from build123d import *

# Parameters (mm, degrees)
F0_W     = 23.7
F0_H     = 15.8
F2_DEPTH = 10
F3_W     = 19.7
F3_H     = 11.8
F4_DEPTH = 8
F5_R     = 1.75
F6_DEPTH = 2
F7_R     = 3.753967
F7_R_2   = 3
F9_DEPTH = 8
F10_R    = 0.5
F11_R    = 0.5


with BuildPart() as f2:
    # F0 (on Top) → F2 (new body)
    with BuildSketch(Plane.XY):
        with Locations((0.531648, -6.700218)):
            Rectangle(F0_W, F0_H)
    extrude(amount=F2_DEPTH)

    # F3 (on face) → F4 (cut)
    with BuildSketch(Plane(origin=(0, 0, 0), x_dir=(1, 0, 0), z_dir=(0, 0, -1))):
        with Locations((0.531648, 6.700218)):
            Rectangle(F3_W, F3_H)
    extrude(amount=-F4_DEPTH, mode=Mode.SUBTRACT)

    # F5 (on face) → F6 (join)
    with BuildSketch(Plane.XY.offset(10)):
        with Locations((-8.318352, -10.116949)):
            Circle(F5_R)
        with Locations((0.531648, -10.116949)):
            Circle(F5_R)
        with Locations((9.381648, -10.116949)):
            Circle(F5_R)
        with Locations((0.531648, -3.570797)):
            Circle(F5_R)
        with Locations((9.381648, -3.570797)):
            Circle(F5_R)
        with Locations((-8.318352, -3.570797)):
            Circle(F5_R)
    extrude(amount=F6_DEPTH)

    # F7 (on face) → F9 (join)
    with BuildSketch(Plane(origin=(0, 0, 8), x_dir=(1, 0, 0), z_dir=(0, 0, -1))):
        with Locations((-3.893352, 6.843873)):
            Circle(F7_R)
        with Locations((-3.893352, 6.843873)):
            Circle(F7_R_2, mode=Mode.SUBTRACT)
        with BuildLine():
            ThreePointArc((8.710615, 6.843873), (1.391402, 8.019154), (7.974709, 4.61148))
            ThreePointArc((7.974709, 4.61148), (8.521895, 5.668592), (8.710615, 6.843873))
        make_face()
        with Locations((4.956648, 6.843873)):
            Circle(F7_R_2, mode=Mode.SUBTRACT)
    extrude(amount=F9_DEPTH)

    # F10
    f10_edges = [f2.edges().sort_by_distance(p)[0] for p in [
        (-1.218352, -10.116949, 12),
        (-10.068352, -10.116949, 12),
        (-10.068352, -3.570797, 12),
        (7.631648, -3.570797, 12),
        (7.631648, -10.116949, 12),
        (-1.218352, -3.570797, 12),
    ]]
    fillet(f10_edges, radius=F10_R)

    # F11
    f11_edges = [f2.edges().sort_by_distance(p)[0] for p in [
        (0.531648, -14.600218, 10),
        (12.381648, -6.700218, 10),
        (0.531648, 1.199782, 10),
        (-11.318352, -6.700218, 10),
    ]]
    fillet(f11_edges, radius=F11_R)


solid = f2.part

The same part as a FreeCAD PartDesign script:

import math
import FreeCAD as App
import Part
import Sketcher


def edges_at(feature, points):
    """Names of the edges that pass closest to the given points."""
    edges = feature.Shape.Edges
    near = lambda p: min(range(len(edges)), key=lambda i: edges[i].distToShape(Part.Vertex(*p))[0])
    return sorted({f"Edge{near(p) + 1}" for p in points})

doc = App.newDocument("Part")
body = doc.addObject("PartDesign::Body", "Body")

# Sketch on XY plane
sketch1 = body.newObject("Sketcher::SketchObject", "Sketch")
sketch1.AttachmentSupport = (doc.getObject("XY_Plane"), [""])
sketch1.MapMode = "FlatFace"
sketch1.addGeometry([
    Part.LineSegment(App.Vector(-11, 1, 0), App.Vector(-11, -15, 0)),
    Part.LineSegment(App.Vector(-11, -15, 0), App.Vector(12, -15, 0)),
    Part.LineSegment(App.Vector(12, -15, 0), App.Vector(12, 1, 0)),
    Part.LineSegment(App.Vector(12, 1, 0), App.Vector(-11, 1, 0)),
], False)
sketch1.addConstraint([
    Sketcher.Constraint("Coincident", 0, 2, 1, 1),
    Sketcher.Constraint("Coincident", 1, 2, 2, 1),
    Sketcher.Constraint("Coincident", 2, 2, 3, 1),
    Sketcher.Constraint("Coincident", 3, 2, 0, 1),
    Sketcher.Constraint("Vertical", 0),
    Sketcher.Constraint("Horizontal", 1),
    Sketcher.Constraint("Vertical", 2),
    Sketcher.Constraint("Horizontal", 3),
    Sketcher.Constraint("DistanceX", 1, 1, 1, 2, 23.7),
    Sketcher.Constraint("DistanceY", 0, 2, 0, 1, 15.8),
    Sketcher.Constraint("DistanceY", -1, 1, 2, 2, 1.199782),
    Sketcher.Constraint("DistanceX", 0, 2, -1, 1, 11.318352),
])
pad1 = body.newObject("PartDesign::Pad", "Pad")
pad1.Profile = sketch1
pad1.Length = 10

# Sketch on XY plane
sketch2 = body.newObject("Sketcher::SketchObject", "Sketch001")
sketch2.AttachmentSupport = (doc.getObject("XY_Plane"), [""])
sketch2.MapMode = "FlatFace"
sketch2.addGeometry([
    Part.LineSegment(App.Vector(-9, -13, 0), App.Vector(-9, -1, 0)),
    Part.LineSegment(App.Vector(-9, -1, 0), App.Vector(10, -1, 0)),
    Part.LineSegment(App.Vector(10, -1, 0), App.Vector(10, -13, 0)),
    Part.LineSegment(App.Vector(10, -13, 0), App.Vector(-9, -13, 0)),
], False)
sketch2.addConstraint([
    Sketcher.Constraint("Coincident", 0, 2, 1, 1),
    Sketcher.Constraint("Coincident", 1, 2, 2, 1),
    Sketcher.Constraint("Coincident", 2, 2, 3, 1),
    Sketcher.Constraint("Coincident", 3, 2, 0, 1),
    Sketcher.Constraint("Vertical", 0),
    Sketcher.Constraint("Horizontal", 1),
    Sketcher.Constraint("Vertical", 2),
    Sketcher.Constraint("Horizontal", 3),
    Sketcher.Constraint("DistanceX", 1, 1, 1, 2, 19.7),
    Sketcher.Constraint("DistanceY", 0, 1, 0, 2, 11.8),
    Sketcher.Constraint("DistanceX", 0, 2, -1, 1, 9.318352),
    Sketcher.Constraint("DistanceY", 0, 2, -1, 1, 0.800218),
])
pocket1 = body.newObject("PartDesign::Pocket", "Pocket")
pocket1.Profile = sketch2
pocket1.Length = 8
pocket1.Reversed = True

# Sketch on XY plane
sketch3 = body.newObject("Sketcher::SketchObject", "Sketch002")
sketch3.AttachmentSupport = (doc.getObject("XY_Plane"), [""])
sketch3.MapMode = "FlatFace"
sketch3.AttachmentOffset = App.Placement(App.Vector(0, 0, 10), App.Rotation())
sketch3.addGeometry([
    Part.Circle(App.Vector(-8.3, -10.1, 0), App.Vector(0, 0, 1), 1.8),  # 0
    Part.Circle(App.Vector(0.5, -10.1, 0), App.Vector(0, 0, 1), 1.8),  # 1
    Part.Circle(App.Vector(9.4, -10.1, 0), App.Vector(0, 0, 1), 1.8),  # 2
    Part.Circle(App.Vector(0.5, -3.6, 0), App.Vector(0, 0, 1), 1.8),  # 3
    Part.Circle(App.Vector(9.4, -3.6, 0), App.Vector(0, 0, 1), 1.8),  # 4
    Part.Circle(App.Vector(-8.3, -3.6, 0), App.Vector(0, 0, 1), 1.8),  # 5
], False)
sketch3.addConstraint([
    Sketcher.Constraint("Equal", 0, 1),
    Sketcher.Constraint("Equal", 1, 2),
    Sketcher.Constraint("Equal", 2, 3),
    Sketcher.Constraint("Equal", 3, 4),
    Sketcher.Constraint("Equal", 4, 5),
    Sketcher.Constraint("Horizontal", 0, 3, 1, 3),
    Sketcher.Constraint("Horizontal", 1, 3, 2, 3),
    Sketcher.Constraint("Horizontal", 3, 3, 4, 3),
    Sketcher.Constraint("Horizontal", 4, 3, 5, 3),
    Sketcher.Constraint("Vertical", 1, 3, 3, 3),
    Sketcher.Constraint("Vertical", 2, 3, 4, 3),
    Sketcher.Constraint("Vertical", 0, 3, 5, 3),
    Sketcher.Constraint("Diameter", 0, 3.5),
    Sketcher.Constraint("DistanceX", 0, 3, 2, 3, 17.7),
    Sketcher.Constraint("DistanceX", 0, 3, 1, 3, 8.85),
    Sketcher.Constraint("DistanceY", 0, 3, -1, 1, 10.116949),
    Sketcher.Constraint("DistanceX", -1, 1, 1, 3, 0.531648),
    Sketcher.Constraint("DistanceY", 1, 3, 3, 3, 6.546152),
])
pad2 = body.newObject("PartDesign::Pad", "Pad001")
pad2.Profile = sketch3
pad2.Length = 2

# Sketch on XY plane
sketch4 = body.newObject("Sketcher::SketchObject", "Sketch003")
sketch4.AttachmentSupport = (doc.getObject("XY_Plane"), [""])
sketch4.MapMode = "FlatFace"
sketch4.AttachmentOffset = App.Placement(App.Vector(0, 0, 8), App.Rotation())
sketch4.addGeometry([
    Part.Circle(App.Vector(-3.9, -6.8, 0), App.Vector(0, 0, 1), 3.8),  # 0
    Part.Circle(App.Vector(-3.9, -6.8, 0), App.Vector(0, 0, 1), 3),  # 1
    Part.ArcOfCircle(Part.Circle(App.Vector(5, -6.8, 0), App.Vector(0, 0, 1), 3.8), math.radians(36), math.radians(360)),  # 2
    Part.ArcOfCircle(Part.Circle(App.Vector(5, -6.8, 0), App.Vector(0, 0, 1), 3.8), math.radians(0), math.radians(36)),  # 3
    Part.Circle(App.Vector(5, -6.8, 0), App.Vector(0, 0, 1), 3),  # 4
], False)
sketch4.addConstraint([
    Sketcher.Constraint("Tangent", 2, 1, 3, 2),
    Sketcher.Constraint("Coincident", 3, 1, 2, 2),
    Sketcher.Constraint("Coincident", 1, 3, 0, 3),
    Sketcher.Constraint("Coincident", 4, 3, 2, 3),
    Sketcher.Constraint("Equal", 0, 2),
    Sketcher.Constraint("Equal", 1, 4),
    Sketcher.Constraint("Horizontal", 1, 3, 2, 3),
    Sketcher.Constraint("Horizontal", 4, 3, 3, 1),
    Sketcher.Constraint("Diameter", 1, 6.0),
    Sketcher.Constraint("Radius", 3, 3.753962),
    Sketcher.Constraint("DistanceX", 0, 3, 2, 3, 8.85),
    Sketcher.Constraint("DistanceX", -1, 1, 2, 3, 4.956648),
    Sketcher.Constraint("DistanceY", 3, 3, -1, 1, 6.843871),
    Sketcher.Constraint("DistanceX", -1, 1, 2, 1, 7.974709),
])
pad3 = body.newObject("PartDesign::Pad", "Pad002")
pad3.Profile = sketch4
pad3.Length = 8
pad3.Reversed = True
doc.recompute()

fillet = body.newObject("PartDesign::Fillet", "Fillet")
fillet.Base = (pad3, edges_at(pad3, [
    (-1.218, -10.117, 12),
    (-10.068, -10.117, 12),
    (-10.068, -3.571, 12),
    (7.632, -3.571, 12),
    (7.632, -10.117, 12),
    (-1.218, -3.571, 12),
]))
fillet.Radius = 0.5
doc.recompute()

fillet2 = body.newObject("PartDesign::Fillet", "Fillet001")
fillet2.Base = (fillet, edges_at(fillet, [
    (0.532, -14.6, 10),
    (12.382, -6.7, 10),
    (0.532, 1.2, 10),
    (-11.318, -6.7, 10),
]))
fillet2.Radius = 0.5

doc.recompute()
